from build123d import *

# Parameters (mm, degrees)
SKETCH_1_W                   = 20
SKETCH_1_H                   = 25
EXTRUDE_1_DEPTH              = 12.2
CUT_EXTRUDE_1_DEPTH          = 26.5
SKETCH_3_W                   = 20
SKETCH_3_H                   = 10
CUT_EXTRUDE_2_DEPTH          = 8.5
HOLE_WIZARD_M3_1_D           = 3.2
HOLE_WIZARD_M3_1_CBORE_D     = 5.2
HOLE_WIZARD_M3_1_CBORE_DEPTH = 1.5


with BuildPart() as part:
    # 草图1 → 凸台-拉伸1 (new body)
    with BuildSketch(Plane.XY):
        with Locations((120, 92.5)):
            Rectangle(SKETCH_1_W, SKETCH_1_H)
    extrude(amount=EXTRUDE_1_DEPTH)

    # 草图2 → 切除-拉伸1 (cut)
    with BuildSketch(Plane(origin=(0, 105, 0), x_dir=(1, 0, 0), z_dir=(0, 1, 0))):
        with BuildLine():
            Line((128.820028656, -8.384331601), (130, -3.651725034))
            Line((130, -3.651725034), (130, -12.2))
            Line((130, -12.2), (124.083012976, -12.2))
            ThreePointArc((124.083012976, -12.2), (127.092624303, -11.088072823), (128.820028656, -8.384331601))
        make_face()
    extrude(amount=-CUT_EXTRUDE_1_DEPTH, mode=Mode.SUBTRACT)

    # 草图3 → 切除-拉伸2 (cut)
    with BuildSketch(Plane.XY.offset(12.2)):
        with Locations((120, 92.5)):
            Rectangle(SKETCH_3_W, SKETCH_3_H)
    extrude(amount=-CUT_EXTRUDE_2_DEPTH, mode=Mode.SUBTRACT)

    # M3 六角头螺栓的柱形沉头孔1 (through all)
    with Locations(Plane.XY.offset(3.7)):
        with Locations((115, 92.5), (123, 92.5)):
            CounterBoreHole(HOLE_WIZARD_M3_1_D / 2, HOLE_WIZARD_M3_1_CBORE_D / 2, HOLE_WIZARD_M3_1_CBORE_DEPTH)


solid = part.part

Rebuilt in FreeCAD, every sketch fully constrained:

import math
import FreeCAD as App
import Part
import Sketcher

V = App.Vector
Q = App.Units.Quantity

doc = App.newDocument("Part")
body = doc.addObject("PartDesign::Body", "Body")

sketch1 = body.newObject("Sketcher::SketchObject", "Sketch")
sketch1.AttachmentSupport = (doc.getObject("XY_Plane"), [""])
sketch1.MapMode = "FlatFace"
sketch1.addGeometry(Part.LineSegment(V(110, 105, 0), V(110, 80, 0)), False)
sketch1.addGeometry(Part.LineSegment(V(110, 80, 0), V(130, 80, 0)), False)
sketch1.addGeometry(Part.LineSegment(V(130, 80, 0), V(130, 105, 0)), False)
sketch1.addGeometry(Part.LineSegment(V(130, 105, 0), V(110, 105, 0)), False)
sketch1.addConstraint(Sketcher.Constraint("Coincident", 0, 2, 1, 1))
sketch1.addConstraint(Sketcher.Constraint("Coincident", 1, 2, 2, 1))
sketch1.addConstraint(Sketcher.Constraint("Coincident", 2, 2, 3, 1))
sketch1.addConstraint(Sketcher.Constraint("Coincident", 3, 2, 0, 1))
sketch1.addConstraint(Sketcher.Constraint("Vertical", 0))
sketch1.addConstraint(Sketcher.Constraint("Horizontal", 1))
sketch1.addConstraint(Sketcher.Constraint("Vertical", 2))
sketch1.addConstraint(Sketcher.Constraint("Horizontal", 3))
sketch1.addConstraint(Sketcher.Constraint("DistanceX", 1, 1, 1, 2, 20.0))
sketch1.addConstraint(Sketcher.Constraint("DistanceY", 0, 2, 0, 1, 25.0))
sketch1.addConstraint(Sketcher.Constraint("DistanceX", -1, 1, 0, 2, 110.0))
sketch1.addConstraint(Sketcher.Constraint("DistanceY", -1, 1, 0, 2, 80.0))
pad1 = body.newObject("PartDesign::Pad", "Pad")
pad1.Profile = sketch1
pad1.Length = 12.2

sketch2 = body.newObject("Sketcher::SketchObject", "Sketch001")
sketch2.AttachmentSupport = (doc.getObject("XZ_Plane"), [""])
sketch2.MapMode = "FlatFace"
sketch2.AttachmentOffset = App.Placement(V(0, 0, -105), App.Rotation())
sketch2.addGeometry(Part.LineSegment(V(130, 3.7, 0), V(128.8, 8.4, 0)), False)
sketch2.addGeometry(Part.ArcOfCircle(Part.Circle(V(123.9, 7.2, 0), V(0, 0, 1), 5), math.radians(14), math.radians(88)), False)
sketch2.addGeometry(Part.LineSegment(V(124.1, 12.2, 0), V(130, 12.2, 0)), False)
sketch2.addGeometry(Part.LineSegment(V(130, 12.2, 0), V(130, 3.7, 0)), False)
sketch2.addConstraint(Sketcher.Constraint("Tangent", 0, 2, 1, 1))
sketch2.addConstraint(Sketcher.Constraint("Coincident", 1, 2, 2, 1))
sketch2.addConstraint(Sketcher.Constraint("Coincident", 2, 2, 3, 1))
sketch2.addConstraint(Sketcher.Constraint("Coincident", 3, 2, 0, 1))
sketch2.addConstraint(Sketcher.Constraint("Horizontal", 2))
sketch2.addConstraint(Sketcher.Constraint("Vertical", 3))
sketch2.addConstraint(Sketcher.Constraint("Angle", 0, Q("104 deg")))
sketch2.addConstraint(Sketcher.Constraint("DistanceX", -1, 1, 2, 2, 130.0))
sketch2.addConstraint(Sketcher.Constraint("DistanceY", -1, 1, 1, 2, 12.2))
sketch2.addConstraint(Sketcher.Constraint("Radius", 1, 5.036279))
sketch2.addConstraint(Sketcher.Constraint("Distance", 0, 4.877489))
sketch2.addConstraint(Sketcher.Constraint("DistanceX", 2, 1, 2, 2, 5.916987))
pocket1 = body.newObject("PartDesign::Pocket", "Pocket")
pocket1.Profile = sketch2
pocket1.Length = 26.5
pocket1.Reversed = True

sketch3 = body.newObject("Sketcher::SketchObject", "Sketch002")
sketch3.AttachmentSupport = (doc.getObject("XY_Plane"), [""])
sketch3.MapMode = "FlatFace"
sketch3.AttachmentOffset = App.Placement(V(0, 0, 12.2), App.Rotation())
sketch3.addGeometry(Part.LineSegment(V(110, 98, 0), V(110, 88, 0)), False)
sketch3.addGeometry(Part.LineSegment(V(110, 88, 0), V(130, 88, 0)), False)
sketch3.addGeometry(Part.LineSegment(V(130, 88, 0), V(130, 98, 0)), False)
sketch3.addGeometry(Part.LineSegment(V(130, 98, 0), V(110, 98, 0)), False)
sketch3.addConstraint(Sketcher.Constraint("Coincident", 0, 2, 1, 1))
sketch3.addConstraint(Sketcher.Constraint("Coincident", 1, 2, 2, 1))
sketch3.addConstraint(Sketcher.Constraint("Coincident", 2, 2, 3, 1))
sketch3.addConstraint(Sketcher.Constraint("Coincident", 3, 2, 0, 1))
sketch3.addConstraint(Sketcher.Constraint("Vertical", 0))
sketch3.addConstraint(Sketcher.Constraint("Horizontal", 1))
sketch3.addConstraint(Sketcher.Constraint("Vertical", 2))
sketch3.addConstraint(Sketcher.Constraint("Horizontal", 3))
sketch3.addConstraint(Sketcher.Constraint("DistanceX", 1, 1, 1, 2, 20.0))
sketch3.addConstraint(Sketcher.Constraint("DistanceY", 0, 2, 0, 1, 10.0))
sketch3.addConstraint(Sketcher.Constraint("DistanceX", -1, 1, 0, 2, 110.0))
sketch3.addConstraint(Sketcher.Constraint("DistanceY", -1, 1, 0, 2, 87.5))
pocket2 = body.newObject("PartDesign::Pocket", "Pocket001")
pocket2.Profile = sketch3
pocket2.Length = 8.5

sketch4 = body.newObject("Sketcher::SketchObject", "Sketch003")
sketch4.AttachmentSupport = (doc.getObject("XY_Plane"), [""])
sketch4.MapMode = "FlatFace"
sketch4.AttachmentOffset = App.Placement(V(0, 0, 3.7), App.Rotation())
sketch4.addGeometry(Part.Circle(V(115, 92.5, 0), V(0, 0, 1), 1.6), False)
sketch4.addGeometry(Part.Circle(V(123, 92.5, 0), V(0, 0, 1), 1.6), False)
sketch4.addConstraint(Sketcher.Constraint("Equal", 0, 1))
sketch4.addConstraint(Sketcher.Constraint("Horizontal", 0, 3, 1, 3))
sketch4.addConstraint(Sketcher.Constraint("Diameter", 0, 3.2))
sketch4.addConstraint(Sketcher.Constraint("DistanceX", -1, 1, 0, 3, 115.0))
sketch4.addConstraint(Sketcher.Constraint("DistanceX", -1, 1, 1, 3, 123.0))
sketch4.addConstraint(Sketcher.Constraint("DistanceY", -1, 1, 0, 3, 92.5))
doc.recompute()
hole = body.newObject("PartDesign::Hole", "Hole")
hole.Profile = sketch4
hole.ThreadType = "None"
hole.Diameter = 3.2
hole.DepthType = "ThroughAll"
hole.HoleCutType = "Counterbore"
hole.HoleCutDiameter = 5.2
hole.HoleCutDepth = 1.5

doc.recompute()
